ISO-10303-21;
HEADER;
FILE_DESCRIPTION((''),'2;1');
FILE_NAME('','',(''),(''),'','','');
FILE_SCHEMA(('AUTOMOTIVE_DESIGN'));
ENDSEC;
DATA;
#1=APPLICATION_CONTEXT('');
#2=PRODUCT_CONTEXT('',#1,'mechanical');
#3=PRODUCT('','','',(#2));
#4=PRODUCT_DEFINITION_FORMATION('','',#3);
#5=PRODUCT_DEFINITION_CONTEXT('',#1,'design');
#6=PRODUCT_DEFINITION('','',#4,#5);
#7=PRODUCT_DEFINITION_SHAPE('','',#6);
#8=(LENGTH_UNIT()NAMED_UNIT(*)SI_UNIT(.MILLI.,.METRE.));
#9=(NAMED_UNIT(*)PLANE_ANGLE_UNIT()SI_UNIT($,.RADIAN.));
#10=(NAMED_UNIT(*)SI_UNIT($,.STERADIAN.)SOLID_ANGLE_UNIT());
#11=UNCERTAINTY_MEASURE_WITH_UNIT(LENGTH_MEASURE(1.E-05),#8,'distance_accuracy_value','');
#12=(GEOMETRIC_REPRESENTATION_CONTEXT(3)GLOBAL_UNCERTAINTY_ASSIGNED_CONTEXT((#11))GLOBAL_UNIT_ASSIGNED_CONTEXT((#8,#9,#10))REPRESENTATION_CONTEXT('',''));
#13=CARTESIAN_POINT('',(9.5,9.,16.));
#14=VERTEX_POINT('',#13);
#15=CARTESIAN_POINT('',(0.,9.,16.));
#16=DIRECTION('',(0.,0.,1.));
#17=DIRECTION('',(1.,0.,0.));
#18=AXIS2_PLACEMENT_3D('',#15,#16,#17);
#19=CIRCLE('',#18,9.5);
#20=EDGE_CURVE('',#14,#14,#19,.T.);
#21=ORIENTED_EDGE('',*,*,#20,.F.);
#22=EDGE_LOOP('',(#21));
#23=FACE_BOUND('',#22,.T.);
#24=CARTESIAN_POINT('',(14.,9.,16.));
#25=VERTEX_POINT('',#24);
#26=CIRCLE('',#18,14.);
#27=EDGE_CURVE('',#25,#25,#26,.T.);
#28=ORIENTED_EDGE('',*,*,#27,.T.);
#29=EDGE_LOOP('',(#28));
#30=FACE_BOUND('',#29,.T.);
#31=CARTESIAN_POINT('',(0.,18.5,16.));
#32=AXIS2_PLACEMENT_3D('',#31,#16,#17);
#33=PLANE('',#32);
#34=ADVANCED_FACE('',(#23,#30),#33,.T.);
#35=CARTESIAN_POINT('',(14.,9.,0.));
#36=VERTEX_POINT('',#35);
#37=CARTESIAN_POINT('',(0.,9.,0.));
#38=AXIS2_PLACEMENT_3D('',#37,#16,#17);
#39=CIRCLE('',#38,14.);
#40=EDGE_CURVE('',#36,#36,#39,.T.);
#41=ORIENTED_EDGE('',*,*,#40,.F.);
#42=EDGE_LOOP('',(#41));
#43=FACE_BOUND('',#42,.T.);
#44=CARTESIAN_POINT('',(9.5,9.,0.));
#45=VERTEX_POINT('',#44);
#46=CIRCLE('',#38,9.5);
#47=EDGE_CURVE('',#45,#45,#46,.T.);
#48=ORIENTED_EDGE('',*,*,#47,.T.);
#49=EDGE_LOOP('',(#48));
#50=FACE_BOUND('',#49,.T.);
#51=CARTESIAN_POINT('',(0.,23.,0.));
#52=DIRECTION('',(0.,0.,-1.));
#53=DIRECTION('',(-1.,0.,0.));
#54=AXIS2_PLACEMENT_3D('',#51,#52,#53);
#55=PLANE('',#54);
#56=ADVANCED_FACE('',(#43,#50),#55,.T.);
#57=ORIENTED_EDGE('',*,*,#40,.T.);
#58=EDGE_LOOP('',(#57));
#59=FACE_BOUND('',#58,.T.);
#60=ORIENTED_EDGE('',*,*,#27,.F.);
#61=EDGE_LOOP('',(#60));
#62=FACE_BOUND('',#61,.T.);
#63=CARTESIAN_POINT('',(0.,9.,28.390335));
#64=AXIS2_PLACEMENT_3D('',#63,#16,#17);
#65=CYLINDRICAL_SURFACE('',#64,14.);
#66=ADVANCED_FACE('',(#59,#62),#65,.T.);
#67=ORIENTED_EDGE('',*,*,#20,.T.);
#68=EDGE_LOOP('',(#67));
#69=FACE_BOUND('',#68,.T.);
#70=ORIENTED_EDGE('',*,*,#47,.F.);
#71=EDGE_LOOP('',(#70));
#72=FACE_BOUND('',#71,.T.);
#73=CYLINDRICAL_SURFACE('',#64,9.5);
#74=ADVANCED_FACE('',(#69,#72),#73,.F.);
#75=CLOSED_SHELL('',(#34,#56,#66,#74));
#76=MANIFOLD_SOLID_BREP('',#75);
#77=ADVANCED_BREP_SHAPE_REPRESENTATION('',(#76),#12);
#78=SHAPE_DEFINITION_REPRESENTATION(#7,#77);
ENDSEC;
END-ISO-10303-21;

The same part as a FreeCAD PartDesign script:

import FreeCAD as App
import Part
import Sketcher

V = App.Vector


def add_polygon(sketch, points):
    """Adds a closed chain of lines whose ends are joined by coincident constraints."""
    first, n = sketch.GeometryCount, len(points)
    for a, b in zip(points, points[1:] + points[:1]):
        sketch.addGeometry(Part.LineSegment(App.Vector(*a, 0), App.Vector(*b, 0)), False)
    for i in range(n):
        sketch.addConstraint(Sketcher.Constraint("Coincident", first + i, 2, first + (i + 1) % n, 1))

doc = App.newDocument("Part")
body = doc.addObject("PartDesign::Body", "Body")

# Sketch on YZ plane
sketch1 = body.newObject("Sketcher::SketchObject", "Sketch")
sketch1.AttachmentSupport = (doc.getObject("YZ_Plane"), [""])
sketch1.MapMode = "FlatFace"
add_polygon(sketch1, [(23, 16), (18.5, 16), (18.5, 0), (23, 0)])  # lines 0-3
sketch1.addGeometry(Part.LineSegment(V(9, 16, 0), V(9, 0, 0)), True)  # axis
sketch1.addConstraint([
    Sketcher.Constraint("Horizontal", 0),
    Sketcher.Constraint("Vertical", 1),
    Sketcher.Constraint("Horizontal", 2),
    Sketcher.Constraint("Vertical", 3),
    Sketcher.Constraint("Vertical", 4),
    Sketcher.Constraint("PointOnObject", 1, 2, -1),
    Sketcher.Constraint("PointOnObject", 4, 2, -1),
    Sketcher.Constraint("Horizontal", 3, 2, 4, 1),
    Sketcher.Constraint("DistanceY", 1, 2, 1, 1, 16.0),
    Sketcher.Constraint("DistanceX", 0, 2, 0, 1, 4.5),
    Sketcher.Constraint("DistanceX", -1, 1, 2, 2, 23.0),
    Sketcher.Constraint("DistanceX", -1, 1, 4, 1, 9.0),
])
revolution = body.newObject("PartDesign::Revolution", "Revolution")
revolution.Profile = sketch1
revolution.ReferenceAxis = (sketch1, ["Axis0"])
revolution.Angle = 360

doc.recompute()
